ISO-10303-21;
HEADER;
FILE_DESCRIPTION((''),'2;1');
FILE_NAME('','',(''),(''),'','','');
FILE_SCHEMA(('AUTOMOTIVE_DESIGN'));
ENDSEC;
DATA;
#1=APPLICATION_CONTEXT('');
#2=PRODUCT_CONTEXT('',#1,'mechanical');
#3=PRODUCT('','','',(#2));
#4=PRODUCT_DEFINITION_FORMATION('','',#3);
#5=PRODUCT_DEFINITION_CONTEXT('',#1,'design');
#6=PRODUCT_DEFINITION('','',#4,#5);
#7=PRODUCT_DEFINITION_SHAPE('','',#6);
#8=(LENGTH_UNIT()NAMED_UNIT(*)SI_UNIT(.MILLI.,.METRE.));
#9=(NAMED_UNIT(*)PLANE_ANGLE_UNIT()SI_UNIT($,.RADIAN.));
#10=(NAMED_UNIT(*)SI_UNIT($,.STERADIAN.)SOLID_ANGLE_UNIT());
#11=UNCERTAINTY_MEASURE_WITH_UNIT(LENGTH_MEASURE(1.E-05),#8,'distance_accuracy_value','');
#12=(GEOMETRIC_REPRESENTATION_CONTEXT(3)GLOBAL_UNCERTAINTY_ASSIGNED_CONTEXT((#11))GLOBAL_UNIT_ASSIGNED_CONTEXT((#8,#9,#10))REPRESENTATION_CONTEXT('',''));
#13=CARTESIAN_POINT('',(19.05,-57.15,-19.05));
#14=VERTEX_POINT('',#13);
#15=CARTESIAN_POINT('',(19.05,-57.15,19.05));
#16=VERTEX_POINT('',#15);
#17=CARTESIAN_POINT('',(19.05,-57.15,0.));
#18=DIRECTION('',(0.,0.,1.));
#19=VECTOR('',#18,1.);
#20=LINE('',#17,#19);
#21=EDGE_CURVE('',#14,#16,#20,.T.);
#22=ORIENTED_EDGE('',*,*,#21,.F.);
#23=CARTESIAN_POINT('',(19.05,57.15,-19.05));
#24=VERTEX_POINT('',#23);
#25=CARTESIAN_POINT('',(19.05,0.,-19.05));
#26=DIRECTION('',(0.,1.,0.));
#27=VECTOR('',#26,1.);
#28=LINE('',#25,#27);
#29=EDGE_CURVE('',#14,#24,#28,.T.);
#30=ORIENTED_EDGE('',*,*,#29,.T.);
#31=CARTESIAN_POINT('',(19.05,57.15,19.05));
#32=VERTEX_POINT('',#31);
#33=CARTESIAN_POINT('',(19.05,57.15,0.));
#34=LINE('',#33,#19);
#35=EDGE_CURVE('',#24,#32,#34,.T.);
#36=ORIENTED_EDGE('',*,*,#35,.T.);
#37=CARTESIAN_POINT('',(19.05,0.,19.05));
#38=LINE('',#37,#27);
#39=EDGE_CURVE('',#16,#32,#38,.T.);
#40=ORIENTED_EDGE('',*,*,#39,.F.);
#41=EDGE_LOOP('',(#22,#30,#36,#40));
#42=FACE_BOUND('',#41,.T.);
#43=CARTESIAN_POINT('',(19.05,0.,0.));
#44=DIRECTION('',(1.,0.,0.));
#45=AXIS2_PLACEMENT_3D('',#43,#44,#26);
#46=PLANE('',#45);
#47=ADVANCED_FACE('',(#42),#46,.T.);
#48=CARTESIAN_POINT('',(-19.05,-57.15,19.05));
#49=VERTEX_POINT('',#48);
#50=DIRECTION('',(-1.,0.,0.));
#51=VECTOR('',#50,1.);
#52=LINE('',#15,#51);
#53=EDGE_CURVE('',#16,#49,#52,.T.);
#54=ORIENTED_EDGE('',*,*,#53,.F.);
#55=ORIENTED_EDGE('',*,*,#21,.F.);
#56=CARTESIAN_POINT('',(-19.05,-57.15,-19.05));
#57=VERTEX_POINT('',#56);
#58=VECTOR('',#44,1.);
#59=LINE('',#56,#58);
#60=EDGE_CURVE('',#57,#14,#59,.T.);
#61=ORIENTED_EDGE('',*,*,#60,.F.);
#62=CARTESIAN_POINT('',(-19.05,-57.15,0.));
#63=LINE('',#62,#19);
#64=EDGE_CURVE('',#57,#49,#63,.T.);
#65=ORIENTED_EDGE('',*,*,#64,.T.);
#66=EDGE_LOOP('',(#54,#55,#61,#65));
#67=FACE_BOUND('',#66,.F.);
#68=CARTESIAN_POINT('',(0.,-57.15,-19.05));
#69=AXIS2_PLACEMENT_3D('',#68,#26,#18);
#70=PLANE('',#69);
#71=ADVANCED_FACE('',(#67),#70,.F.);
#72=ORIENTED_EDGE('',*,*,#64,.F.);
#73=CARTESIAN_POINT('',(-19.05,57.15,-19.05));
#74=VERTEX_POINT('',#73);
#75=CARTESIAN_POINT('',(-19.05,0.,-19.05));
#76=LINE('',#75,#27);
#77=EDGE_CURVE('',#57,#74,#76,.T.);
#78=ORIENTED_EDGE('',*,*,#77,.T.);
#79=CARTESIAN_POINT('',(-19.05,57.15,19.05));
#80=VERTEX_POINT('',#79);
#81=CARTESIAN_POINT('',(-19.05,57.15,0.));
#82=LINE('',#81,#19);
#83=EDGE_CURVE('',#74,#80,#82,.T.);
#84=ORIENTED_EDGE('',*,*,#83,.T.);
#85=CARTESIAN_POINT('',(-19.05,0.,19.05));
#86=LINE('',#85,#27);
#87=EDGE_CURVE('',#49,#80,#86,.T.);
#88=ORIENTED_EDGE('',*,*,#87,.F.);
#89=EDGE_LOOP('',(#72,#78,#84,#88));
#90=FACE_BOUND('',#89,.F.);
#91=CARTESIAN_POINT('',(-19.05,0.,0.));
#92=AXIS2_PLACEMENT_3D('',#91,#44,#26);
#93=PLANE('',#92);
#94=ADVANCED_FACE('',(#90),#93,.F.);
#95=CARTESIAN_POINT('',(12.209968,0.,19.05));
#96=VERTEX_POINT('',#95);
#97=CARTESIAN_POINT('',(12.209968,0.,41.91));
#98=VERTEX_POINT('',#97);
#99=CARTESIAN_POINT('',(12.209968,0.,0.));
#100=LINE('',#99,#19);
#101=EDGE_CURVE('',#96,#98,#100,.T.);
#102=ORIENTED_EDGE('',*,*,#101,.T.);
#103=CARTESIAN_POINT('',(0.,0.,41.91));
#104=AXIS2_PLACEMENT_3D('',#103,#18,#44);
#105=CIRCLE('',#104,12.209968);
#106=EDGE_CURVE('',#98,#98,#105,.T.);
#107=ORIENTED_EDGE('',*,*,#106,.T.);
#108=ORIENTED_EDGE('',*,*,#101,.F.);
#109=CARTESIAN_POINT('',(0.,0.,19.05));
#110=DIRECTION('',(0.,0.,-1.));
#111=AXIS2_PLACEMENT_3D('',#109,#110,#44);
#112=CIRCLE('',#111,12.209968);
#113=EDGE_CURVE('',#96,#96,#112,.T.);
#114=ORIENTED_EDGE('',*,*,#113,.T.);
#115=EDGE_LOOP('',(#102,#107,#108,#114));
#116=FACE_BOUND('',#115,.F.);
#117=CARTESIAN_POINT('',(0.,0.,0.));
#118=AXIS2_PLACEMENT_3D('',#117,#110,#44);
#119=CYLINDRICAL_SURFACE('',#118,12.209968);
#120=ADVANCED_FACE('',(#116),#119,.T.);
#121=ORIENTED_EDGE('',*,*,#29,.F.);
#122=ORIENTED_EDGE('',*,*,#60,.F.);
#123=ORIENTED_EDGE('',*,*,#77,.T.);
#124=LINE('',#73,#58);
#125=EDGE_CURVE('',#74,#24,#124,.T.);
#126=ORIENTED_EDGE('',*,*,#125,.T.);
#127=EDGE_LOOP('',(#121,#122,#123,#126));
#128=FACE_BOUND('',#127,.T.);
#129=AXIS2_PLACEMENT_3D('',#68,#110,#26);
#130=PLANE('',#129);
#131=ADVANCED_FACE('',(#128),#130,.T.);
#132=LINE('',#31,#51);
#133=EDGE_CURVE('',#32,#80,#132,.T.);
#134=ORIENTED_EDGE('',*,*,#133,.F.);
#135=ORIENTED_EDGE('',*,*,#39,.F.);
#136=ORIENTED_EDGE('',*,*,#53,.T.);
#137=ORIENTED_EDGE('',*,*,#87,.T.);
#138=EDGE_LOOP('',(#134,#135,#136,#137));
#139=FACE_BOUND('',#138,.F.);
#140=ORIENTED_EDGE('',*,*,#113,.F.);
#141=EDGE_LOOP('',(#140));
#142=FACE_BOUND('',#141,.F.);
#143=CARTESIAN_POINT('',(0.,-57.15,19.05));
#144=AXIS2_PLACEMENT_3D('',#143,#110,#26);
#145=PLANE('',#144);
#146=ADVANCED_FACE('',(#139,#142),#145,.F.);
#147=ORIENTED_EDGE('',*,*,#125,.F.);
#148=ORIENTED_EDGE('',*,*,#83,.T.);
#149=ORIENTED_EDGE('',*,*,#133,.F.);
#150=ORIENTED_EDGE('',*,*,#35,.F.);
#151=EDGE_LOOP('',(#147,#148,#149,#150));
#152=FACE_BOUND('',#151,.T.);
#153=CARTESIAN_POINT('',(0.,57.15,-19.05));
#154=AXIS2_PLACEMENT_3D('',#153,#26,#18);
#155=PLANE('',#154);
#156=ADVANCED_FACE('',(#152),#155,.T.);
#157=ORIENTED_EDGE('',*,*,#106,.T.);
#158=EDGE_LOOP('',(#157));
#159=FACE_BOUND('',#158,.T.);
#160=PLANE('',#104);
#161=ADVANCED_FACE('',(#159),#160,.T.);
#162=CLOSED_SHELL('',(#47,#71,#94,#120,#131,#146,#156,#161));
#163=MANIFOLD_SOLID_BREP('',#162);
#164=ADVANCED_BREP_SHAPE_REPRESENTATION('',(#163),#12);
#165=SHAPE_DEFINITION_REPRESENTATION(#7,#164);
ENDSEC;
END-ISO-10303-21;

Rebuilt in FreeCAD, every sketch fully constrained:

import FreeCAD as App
import Part
import Sketcher
from FreeCAD import Vector
Q = App.Units.Quantity

doc = App.newDocument("Part")
body = doc.addObject("PartDesign::Body", "Body")

# Sketch on XY plane
sketch1 = body.newObject("Sketcher::SketchObject", "Sketch")
sketch1.AttachmentSupport = (doc.getObject("XY_Plane"), [""])
sketch1.MapMode = "FlatFace"
sketch1.addGeometry(Part.Circle(Vector(0, 0, 0), Vector(0, 0, 1), 12), False)
sketch1.addConstraint([
    Sketcher.Constraint("Coincident", 0, 3, -1, 1),
    Sketcher.Constraint("Diameter", 0, Q("24.419936 mm")),
])
pad1 = body.newObject("PartDesign::Pad", "Pad")
pad1.Profile = sketch1
pad1.Length = Q("1.65 in")

# Sketch on YZ plane
sketch2 = body.newObject("Sketcher::SketchObject", "Sketch001")
sketch2.AttachmentSupport = (doc.getObject("YZ_Plane"), [""])
sketch2.MapMode = "FlatFace"
sketch2.addGeometry([
    Part.LineSegment(Vector(-57, 19, 0), Vector(-57, -19, 0)),
    Part.LineSegment(Vector(-57, -19, 0), Vector(57, -19, 0)),
    Part.LineSegment(Vector(57, -19, 0), Vector(57, 19, 0)),
    Part.LineSegment(Vector(57, 19, 0), Vector(-57, 19, 0)),
], False)
sketch2.addConstraint([
    Sketcher.Constraint("Coincident", 0, 2, 1, 1),
    Sketcher.Constraint("Coincident", 1, 2, 2, 1),
    Sketcher.Constraint("Coincident", 2, 2, 3, 1),
    Sketcher.Constraint("Coincident", 3, 2, 0, 1),
    Sketcher.Constraint("Vertical", 0),
    Sketcher.Constraint("Horizontal", 1),
    Sketcher.Constraint("Vertical", 2),
    Sketcher.Constraint("Horizontal", 3),
    Sketcher.Constraint("Symmetric", 0, 2, 2, 2, -1, 1),
    Sketcher.Constraint("DistanceX", 1, 1, 1, 2, Q("4.5 in")),
    Sketcher.Constraint("DistanceY", 0, 2, 0, 1, Q("1.5 in")),
])
pad2 = body.newObject("PartDesign::Pad", "Pad001")
pad2.Profile = sketch2
pad2.Length = Q("1.5 in")
pad2.Midplane = True

doc.recompute()
